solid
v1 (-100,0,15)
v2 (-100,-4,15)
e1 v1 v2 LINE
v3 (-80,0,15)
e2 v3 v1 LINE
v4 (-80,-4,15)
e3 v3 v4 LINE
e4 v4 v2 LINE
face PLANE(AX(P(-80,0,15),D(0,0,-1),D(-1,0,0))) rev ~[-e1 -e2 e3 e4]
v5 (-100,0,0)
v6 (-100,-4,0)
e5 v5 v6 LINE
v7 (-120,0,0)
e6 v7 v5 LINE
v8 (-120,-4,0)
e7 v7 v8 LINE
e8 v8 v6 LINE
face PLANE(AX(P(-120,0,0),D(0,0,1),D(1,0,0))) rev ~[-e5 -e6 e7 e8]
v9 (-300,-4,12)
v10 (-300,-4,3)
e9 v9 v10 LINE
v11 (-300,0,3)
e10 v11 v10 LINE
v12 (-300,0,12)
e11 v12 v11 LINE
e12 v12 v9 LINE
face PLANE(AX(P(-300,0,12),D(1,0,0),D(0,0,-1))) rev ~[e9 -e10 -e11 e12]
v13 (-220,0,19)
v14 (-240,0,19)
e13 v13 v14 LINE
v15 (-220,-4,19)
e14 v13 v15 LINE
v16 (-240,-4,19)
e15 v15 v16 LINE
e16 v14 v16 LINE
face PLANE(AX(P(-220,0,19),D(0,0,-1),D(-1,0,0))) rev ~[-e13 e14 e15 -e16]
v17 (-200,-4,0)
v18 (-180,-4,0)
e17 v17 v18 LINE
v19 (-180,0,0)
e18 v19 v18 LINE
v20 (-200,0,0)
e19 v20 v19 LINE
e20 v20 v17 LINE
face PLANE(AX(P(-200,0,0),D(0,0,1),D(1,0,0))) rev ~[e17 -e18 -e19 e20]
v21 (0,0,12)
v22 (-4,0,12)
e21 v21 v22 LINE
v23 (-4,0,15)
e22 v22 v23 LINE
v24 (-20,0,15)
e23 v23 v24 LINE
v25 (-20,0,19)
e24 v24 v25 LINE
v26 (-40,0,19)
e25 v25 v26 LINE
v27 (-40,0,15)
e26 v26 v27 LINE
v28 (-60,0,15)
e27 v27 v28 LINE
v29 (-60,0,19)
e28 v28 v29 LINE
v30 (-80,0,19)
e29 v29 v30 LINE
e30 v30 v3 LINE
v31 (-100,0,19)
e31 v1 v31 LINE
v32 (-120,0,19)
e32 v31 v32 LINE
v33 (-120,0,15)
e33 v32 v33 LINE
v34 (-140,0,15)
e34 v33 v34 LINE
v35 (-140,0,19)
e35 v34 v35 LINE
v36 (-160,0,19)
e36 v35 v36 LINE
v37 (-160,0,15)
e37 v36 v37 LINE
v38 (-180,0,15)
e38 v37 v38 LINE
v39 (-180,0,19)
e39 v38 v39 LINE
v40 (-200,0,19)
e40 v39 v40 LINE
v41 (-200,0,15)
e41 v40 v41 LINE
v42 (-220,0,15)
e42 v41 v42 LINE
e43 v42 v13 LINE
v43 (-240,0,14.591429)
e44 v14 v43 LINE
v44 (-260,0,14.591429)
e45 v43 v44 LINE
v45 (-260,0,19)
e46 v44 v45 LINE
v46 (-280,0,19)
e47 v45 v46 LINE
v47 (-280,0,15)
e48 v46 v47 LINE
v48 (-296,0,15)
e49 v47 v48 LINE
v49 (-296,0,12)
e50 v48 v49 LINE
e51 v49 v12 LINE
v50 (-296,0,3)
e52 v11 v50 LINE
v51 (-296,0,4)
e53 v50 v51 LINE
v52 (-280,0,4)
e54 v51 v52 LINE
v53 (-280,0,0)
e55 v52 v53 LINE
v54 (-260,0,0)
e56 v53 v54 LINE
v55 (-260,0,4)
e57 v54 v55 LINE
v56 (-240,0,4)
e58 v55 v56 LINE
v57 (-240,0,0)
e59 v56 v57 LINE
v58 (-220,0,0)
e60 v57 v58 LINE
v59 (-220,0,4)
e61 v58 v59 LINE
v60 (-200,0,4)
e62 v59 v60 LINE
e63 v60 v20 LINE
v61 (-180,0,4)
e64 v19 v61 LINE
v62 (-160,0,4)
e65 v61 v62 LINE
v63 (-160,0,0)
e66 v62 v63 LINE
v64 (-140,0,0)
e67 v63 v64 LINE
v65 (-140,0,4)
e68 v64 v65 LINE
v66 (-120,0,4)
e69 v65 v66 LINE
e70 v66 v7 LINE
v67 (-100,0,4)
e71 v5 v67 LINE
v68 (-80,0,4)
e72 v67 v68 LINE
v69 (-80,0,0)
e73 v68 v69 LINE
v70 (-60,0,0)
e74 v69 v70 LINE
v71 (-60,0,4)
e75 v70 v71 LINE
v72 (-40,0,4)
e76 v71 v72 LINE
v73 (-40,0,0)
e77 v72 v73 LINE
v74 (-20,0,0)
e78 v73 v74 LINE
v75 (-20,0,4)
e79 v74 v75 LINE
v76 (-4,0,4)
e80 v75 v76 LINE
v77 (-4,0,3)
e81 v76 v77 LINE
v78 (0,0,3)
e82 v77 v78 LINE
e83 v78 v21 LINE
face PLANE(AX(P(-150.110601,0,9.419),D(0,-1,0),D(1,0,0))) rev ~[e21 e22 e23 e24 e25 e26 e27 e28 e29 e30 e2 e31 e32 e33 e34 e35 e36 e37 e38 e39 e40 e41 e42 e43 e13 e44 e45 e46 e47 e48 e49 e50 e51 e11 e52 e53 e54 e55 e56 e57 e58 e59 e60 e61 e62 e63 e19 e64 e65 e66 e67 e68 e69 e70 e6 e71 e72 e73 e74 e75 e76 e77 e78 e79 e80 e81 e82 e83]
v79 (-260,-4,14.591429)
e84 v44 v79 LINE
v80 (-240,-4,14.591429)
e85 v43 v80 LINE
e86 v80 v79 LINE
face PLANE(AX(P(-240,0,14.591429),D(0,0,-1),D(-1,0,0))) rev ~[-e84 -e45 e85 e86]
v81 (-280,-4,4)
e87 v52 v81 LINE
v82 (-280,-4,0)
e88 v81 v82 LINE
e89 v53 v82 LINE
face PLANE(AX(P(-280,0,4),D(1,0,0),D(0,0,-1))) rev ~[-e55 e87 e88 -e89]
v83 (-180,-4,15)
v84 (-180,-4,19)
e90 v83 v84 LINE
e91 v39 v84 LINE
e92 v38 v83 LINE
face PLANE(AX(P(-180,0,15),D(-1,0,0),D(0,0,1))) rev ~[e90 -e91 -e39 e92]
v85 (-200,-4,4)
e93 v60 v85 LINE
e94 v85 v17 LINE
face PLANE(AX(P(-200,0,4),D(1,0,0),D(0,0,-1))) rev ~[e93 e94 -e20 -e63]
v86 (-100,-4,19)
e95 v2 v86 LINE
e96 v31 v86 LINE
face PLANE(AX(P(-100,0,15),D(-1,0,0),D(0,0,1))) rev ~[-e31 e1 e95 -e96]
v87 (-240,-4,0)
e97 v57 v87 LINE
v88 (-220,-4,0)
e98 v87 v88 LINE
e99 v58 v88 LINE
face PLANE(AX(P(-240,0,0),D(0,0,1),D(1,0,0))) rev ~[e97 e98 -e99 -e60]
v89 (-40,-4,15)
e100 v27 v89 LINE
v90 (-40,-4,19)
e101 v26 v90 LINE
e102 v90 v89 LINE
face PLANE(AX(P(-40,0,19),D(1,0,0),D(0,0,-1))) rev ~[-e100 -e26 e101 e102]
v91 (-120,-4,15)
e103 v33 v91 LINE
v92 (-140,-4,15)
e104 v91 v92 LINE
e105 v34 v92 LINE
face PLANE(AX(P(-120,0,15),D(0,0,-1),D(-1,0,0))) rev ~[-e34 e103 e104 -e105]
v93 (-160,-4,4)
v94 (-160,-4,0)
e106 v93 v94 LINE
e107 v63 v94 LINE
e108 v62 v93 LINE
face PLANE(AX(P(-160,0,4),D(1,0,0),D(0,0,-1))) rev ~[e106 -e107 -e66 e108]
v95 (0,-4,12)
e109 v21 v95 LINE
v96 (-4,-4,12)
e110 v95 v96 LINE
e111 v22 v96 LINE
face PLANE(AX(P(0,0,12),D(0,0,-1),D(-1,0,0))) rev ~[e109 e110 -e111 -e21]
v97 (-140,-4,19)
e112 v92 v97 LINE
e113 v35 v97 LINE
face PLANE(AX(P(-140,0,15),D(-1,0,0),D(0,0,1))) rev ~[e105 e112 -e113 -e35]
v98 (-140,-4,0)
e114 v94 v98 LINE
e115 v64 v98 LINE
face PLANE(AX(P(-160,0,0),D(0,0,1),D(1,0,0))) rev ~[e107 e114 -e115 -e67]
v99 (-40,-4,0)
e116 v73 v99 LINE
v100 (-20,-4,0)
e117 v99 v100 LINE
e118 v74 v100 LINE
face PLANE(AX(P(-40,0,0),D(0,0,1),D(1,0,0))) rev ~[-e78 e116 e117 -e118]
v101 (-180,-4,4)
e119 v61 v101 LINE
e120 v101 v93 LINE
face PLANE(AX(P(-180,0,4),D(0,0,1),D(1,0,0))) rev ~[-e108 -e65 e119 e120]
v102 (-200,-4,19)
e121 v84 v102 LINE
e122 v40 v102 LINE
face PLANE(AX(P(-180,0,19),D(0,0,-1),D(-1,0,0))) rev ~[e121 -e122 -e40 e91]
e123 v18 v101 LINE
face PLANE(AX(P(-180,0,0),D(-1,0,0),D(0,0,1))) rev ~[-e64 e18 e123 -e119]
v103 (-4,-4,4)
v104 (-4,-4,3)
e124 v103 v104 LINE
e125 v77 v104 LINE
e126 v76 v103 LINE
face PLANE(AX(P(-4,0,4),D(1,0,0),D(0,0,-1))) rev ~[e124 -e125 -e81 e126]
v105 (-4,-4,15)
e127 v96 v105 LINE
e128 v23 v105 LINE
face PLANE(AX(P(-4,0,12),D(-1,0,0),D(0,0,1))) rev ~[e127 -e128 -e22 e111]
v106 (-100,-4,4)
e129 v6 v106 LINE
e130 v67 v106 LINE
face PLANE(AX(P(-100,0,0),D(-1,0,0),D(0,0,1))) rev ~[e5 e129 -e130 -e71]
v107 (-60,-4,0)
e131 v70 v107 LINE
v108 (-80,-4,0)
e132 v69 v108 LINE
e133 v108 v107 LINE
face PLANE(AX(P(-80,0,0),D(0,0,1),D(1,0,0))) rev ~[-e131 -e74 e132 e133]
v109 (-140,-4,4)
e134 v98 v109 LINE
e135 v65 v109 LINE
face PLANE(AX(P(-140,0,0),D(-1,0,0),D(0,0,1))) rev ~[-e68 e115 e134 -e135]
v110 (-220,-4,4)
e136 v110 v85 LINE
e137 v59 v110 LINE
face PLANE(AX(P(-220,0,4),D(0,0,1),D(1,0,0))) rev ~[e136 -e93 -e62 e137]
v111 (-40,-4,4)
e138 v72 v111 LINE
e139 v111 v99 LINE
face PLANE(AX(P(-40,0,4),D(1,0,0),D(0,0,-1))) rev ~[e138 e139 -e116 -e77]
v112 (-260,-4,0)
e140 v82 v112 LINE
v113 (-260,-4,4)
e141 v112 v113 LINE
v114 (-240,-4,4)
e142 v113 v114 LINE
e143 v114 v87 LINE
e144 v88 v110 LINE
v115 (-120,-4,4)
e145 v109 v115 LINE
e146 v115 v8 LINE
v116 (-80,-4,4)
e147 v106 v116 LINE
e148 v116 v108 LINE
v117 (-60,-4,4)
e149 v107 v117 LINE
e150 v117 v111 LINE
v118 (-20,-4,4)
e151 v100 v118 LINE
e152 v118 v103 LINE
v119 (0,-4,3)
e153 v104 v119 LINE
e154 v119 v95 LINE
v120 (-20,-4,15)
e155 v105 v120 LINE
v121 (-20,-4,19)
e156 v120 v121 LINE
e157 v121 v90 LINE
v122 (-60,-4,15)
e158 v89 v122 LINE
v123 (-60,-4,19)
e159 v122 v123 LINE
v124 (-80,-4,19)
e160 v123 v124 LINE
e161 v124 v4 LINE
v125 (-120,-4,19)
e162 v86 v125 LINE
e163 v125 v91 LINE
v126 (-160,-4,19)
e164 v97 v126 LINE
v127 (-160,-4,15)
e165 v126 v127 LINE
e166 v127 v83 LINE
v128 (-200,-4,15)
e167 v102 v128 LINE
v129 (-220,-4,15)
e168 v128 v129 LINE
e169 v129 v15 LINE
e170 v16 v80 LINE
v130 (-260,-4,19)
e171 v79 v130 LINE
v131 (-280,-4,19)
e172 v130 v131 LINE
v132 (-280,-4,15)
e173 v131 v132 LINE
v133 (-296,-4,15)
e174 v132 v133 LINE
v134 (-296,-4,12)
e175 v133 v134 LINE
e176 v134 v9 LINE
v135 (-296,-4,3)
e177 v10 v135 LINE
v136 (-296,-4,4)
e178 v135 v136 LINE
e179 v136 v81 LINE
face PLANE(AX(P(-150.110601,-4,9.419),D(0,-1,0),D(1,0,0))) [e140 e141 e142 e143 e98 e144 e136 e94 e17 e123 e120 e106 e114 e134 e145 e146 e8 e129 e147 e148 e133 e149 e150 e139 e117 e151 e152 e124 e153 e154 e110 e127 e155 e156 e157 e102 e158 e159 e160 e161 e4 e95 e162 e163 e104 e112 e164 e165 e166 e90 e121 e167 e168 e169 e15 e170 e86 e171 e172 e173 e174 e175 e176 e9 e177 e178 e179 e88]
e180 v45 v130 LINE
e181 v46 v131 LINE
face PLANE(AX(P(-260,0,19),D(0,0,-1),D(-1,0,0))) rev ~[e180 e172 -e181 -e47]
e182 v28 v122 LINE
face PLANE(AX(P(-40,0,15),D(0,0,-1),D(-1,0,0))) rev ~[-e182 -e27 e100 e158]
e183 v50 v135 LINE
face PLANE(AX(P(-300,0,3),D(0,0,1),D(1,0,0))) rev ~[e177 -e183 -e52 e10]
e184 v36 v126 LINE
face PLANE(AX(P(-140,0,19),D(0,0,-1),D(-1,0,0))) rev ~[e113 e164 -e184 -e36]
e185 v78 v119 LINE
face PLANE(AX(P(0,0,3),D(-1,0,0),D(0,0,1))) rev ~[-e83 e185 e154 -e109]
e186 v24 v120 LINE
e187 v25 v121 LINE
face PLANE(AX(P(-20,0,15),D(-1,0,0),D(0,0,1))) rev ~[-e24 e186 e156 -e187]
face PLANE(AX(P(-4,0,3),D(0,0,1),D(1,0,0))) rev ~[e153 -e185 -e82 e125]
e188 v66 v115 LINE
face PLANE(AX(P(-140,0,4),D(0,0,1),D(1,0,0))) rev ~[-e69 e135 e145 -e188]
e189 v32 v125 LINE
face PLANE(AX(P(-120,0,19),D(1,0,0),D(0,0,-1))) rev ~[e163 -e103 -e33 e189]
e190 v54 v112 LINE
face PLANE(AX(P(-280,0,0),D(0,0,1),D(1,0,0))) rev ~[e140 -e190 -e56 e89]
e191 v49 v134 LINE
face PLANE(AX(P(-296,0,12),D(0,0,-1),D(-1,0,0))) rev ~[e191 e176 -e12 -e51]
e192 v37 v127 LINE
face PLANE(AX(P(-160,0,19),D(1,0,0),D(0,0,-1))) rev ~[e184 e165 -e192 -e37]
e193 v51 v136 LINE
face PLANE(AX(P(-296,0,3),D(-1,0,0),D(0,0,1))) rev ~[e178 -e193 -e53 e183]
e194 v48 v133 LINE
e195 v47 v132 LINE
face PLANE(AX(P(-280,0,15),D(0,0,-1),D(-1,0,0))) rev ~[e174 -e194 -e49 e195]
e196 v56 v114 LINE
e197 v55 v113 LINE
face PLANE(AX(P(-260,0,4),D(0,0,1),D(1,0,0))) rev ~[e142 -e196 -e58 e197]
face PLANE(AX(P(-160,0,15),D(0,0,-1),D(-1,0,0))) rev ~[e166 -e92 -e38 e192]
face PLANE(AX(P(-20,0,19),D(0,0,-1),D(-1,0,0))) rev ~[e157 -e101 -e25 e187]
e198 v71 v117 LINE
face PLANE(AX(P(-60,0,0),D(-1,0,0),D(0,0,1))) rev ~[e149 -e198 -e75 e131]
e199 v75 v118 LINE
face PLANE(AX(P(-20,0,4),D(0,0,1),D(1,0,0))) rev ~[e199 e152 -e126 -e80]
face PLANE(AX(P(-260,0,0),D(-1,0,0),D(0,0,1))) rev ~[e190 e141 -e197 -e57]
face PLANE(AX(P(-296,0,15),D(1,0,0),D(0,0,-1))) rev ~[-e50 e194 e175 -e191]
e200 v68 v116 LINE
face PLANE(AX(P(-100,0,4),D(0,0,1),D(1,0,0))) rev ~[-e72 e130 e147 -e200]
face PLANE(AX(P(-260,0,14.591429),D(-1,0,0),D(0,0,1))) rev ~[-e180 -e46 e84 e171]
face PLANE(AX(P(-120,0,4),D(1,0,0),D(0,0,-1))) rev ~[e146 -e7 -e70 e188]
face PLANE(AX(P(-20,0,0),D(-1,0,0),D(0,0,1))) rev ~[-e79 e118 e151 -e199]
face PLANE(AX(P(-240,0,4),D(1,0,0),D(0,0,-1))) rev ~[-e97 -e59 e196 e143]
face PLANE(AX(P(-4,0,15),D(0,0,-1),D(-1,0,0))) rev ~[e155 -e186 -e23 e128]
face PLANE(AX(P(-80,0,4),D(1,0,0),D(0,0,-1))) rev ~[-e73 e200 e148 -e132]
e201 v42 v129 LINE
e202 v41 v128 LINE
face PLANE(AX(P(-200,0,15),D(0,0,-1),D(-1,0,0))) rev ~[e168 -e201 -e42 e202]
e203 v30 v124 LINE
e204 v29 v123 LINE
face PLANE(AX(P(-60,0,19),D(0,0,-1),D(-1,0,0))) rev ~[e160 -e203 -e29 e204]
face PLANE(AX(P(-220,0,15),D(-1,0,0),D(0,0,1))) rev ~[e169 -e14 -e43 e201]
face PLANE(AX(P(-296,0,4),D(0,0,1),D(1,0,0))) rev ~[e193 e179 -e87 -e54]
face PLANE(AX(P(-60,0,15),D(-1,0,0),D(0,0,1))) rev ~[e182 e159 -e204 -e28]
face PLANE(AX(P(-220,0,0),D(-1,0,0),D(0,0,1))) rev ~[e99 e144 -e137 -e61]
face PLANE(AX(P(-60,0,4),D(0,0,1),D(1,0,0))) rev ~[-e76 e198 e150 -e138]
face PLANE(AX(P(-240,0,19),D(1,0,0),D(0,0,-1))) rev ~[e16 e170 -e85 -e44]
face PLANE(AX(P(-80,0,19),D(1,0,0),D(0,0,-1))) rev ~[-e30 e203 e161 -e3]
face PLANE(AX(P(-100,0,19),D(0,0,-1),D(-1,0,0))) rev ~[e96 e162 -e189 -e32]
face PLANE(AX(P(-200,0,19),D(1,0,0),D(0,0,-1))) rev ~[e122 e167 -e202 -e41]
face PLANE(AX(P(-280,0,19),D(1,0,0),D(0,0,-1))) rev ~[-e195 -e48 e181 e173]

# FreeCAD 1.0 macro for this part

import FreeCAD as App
import Part
import Sketcher
from FreeCAD import Vector


def add_polygon(sketch, points):
    """Adds a closed chain of lines whose ends are joined by coincident constraints."""
    first, n = sketch.GeometryCount, len(points)
    for a, b in zip(points, points[1:] + points[:1]):
        sketch.addGeometry(Part.LineSegment(App.Vector(*a, 0), App.Vector(*b, 0)), False)
    for i in range(n):
        sketch.addConstraint(Sketcher.Constraint("Coincident", first + i, 2, first + (i + 1) % n, 1))

doc = App.newDocument("Part")
body = doc.addObject("PartDesign::Body", "Body")

# Sketch on XZ plane
sketch1 = body.newObject("Sketcher::SketchObject", "Sketch")
sketch1.AttachmentSupport = (doc.getObject("XZ_Plane"), [""])
sketch1.MapMode = "FlatFace"
add_polygon(sketch1, [(-4, 3), (0, 3), (0, 12), (-4, 12), (-4, 15), (-20, 15), (-20, 19), (-40, 19), (-40, 15), (-60, 15), (-60, 19), (-80, 19), (-80, 15), (-100, 15), (-100, 19), (-120, 19), (-120, 15), (-140, 15), (-140, 19), (-160, 19), (-160, 15), (-180, 15), (-180, 19), (-200, 19), (-200, 15), (-220, 15), (-220, 19), (-240, 19), (-240, 14.591429), (-260, 14.591429), (-260, 19), (-280, 19), (-280, 15), (-296, 15), (-296, 12), (-300, 12), (-300, 3), (-296, 3), (-296, 4), (-280, 4), (-280, 0), (-260, 0), (-260, 4), (-240, 4), (-240, 0), (-220, 0), (-220, 4), (-200, 4), (-200, 0), (-180, 0), (-180, 4), (-160, 4), (-160, 0), (-140, 0), (-140, 4), (-120, 4), (-120, 0), (-100, 0), (-100, 4), (-80, 4), (-80, 0), (-60, 0), (-60, 4), (-40, 4), (-40, 0), (-20, 0), (-20, 4), (-4, 4)])  # lines 0-67
sketch1.addConstraint([
    Sketcher.Constraint("Horizontal", 0),
    Sketcher.Constraint("Vertical", 1),
    Sketcher.Constraint("Horizontal", 2),
    Sketcher.Constraint("Vertical", 3),
    Sketcher.Constraint("Horizontal", 4),
    Sketcher.Constraint("Vertical", 5),
    Sketcher.Constraint("Horizontal", 6),
    Sketcher.Constraint("Vertical", 7),
    Sketcher.Constraint("Horizontal", 8),
    Sketcher.Constraint("Vertical", 9),
    Sketcher.Constraint("Horizontal", 10),
    Sketcher.Constraint("Vertical", 11),
    Sketcher.Constraint("Horizontal", 12),
    Sketcher.Constraint("Vertical", 13),
    Sketcher.Constraint("Horizontal", 14),
    Sketcher.Constraint("Vertical", 15),
    Sketcher.Constraint("Horizontal", 16),
    Sketcher.Constraint("Vertical", 17),
    Sketcher.Constraint("Horizontal", 18),
    Sketcher.Constraint("Vertical", 19),
    Sketcher.Constraint("Horizontal", 20),
    Sketcher.Constraint("Vertical", 21),
    Sketcher.Constraint("Horizontal", 22),
    Sketcher.Constraint("Vertical", 23),
    Sketcher.Constraint("Horizontal", 24),
    Sketcher.Constraint("Vertical", 25),
    Sketcher.Constraint("Horizontal", 26),
    Sketcher.Constraint("Vertical", 27),
    Sketcher.Constraint("Horizontal", 28),
    Sketcher.Constraint("Vertical", 29),
    Sketcher.Constraint("Horizontal", 30),
    Sketcher.Constraint("Vertical", 31),
    Sketcher.Constraint("Horizontal", 32),
    Sketcher.Constraint("Vertical", 33),
    Sketcher.Constraint("Horizontal", 34),
    Sketcher.Constraint("Vertical", 35),
    Sketcher.Constraint("Horizontal", 36),
    Sketcher.Constraint("Vertical", 37),
    Sketcher.Constraint("Horizontal", 38),
    Sketcher.Constraint("Vertical", 39),
    Sketcher.Constraint("Horizontal", 40),
    Sketcher.Constraint("Vertical", 41),
    Sketcher.Constraint("Horizontal", 42),
    Sketcher.Constraint("Vertical", 43),
    Sketcher.Constraint("Horizontal", 44),
    Sketcher.Constraint("Vertical", 45),
    Sketcher.Constraint("Horizontal", 46),
    Sketcher.Constraint("Vertical", 47),
    Sketcher.Constraint("Horizontal", 48),
    Sketcher.Constraint("Vertical", 49),
    Sketcher.Constraint("Horizontal", 50),
    Sketcher.Constraint("Vertical", 51),
    Sketcher.Constraint("Horizontal", 52),
    Sketcher.Constraint("Vertical", 53),
    Sketcher.Constraint("Horizontal", 54),
    Sketcher.Constraint("Vertical", 55),
    Sketcher.Constraint("Horizontal", 56),
    Sketcher.Constraint("Vertical", 57),
    Sketcher.Constraint("Horizontal", 58),
    Sketcher.Constraint("Vertical", 59),
    Sketcher.Constraint("Horizontal", 60),
    Sketcher.Constraint("Vertical", 61),
    Sketcher.Constraint("Horizontal", 62),
    Sketcher.Constraint("Vertical", 63),
    Sketcher.Constraint("Horizontal", 64),
    Sketcher.Constraint("Vertical", 65),
    Sketcher.Constraint("Horizontal", 66),
    Sketcher.Constraint("Vertical", 67),
    Sketcher.Constraint("PointOnObject", 0, 2, -2),
    Sketcher.Constraint("PointOnObject", 39, 2, -1),
    Sketcher.Constraint("PointOnObject", 43, 2, -1),
    Sketcher.Constraint("PointOnObject", 47, 2, -1),
    Sketcher.Constraint("PointOnObject", 51, 2, -1),
    Sketcher.Constraint("PointOnObject", 55, 2, -1),
    Sketcher.Constraint("PointOnObject", 59, 2, -1),
    Sketcher.Constraint("PointOnObject", 63, 2, -1),
    Sketcher.Constraint("Horizontal", 4, 2, 7, 2),
    Sketcher.Constraint("Horizontal", 6, 2, 9, 2),
    Sketcher.Constraint("Horizontal", 8, 2, 11, 2),
    Sketcher.Constraint("Horizontal", 10, 2, 13, 2),
    Sketcher.Constraint("Horizontal", 12, 2, 15, 2),
    Sketcher.Constraint("Horizontal", 14, 2, 17, 2),
    Sketcher.Constraint("Horizontal", 16, 2, 19, 2),
    Sketcher.Constraint("Horizontal", 18, 2, 21, 2),
    Sketcher.Constraint("Horizontal", 20, 2, 23, 2),
    Sketcher.Constraint("Horizontal", 22, 2, 25, 2),
    Sketcher.Constraint("Horizontal", 26, 2, 29, 2),
    Sketcher.Constraint("Horizontal", 24, 2, 31, 2),
    Sketcher.Constraint("Horizontal", 2, 2, 33, 2),
    Sketcher.Constraint("Horizontal", 0, 2, 35, 2),
    Sketcher.Constraint("Horizontal", 38, 2, 41, 2),
    Sketcher.Constraint("Horizontal", 42, 2, 45, 2),
    Sketcher.Constraint("Horizontal", 46, 2, 49, 2),
    Sketcher.Constraint("Horizontal", 50, 2, 53, 2),
    Sketcher.Constraint("Horizontal", 54, 2, 57, 2),
    Sketcher.Constraint("Horizontal", 58, 2, 61, 2),
    Sketcher.Constraint("Horizontal", 62, 2, 65, 2),
    Sketcher.Constraint("Vertical", 33, 2, 36, 2),
    Sketcher.Constraint("Vertical", 31, 2, 38, 2),
    Sketcher.Constraint("Vertical", 29, 2, 40, 2),
    Sketcher.Constraint("Vertical", 27, 2, 42, 2),
    Sketcher.Constraint("Vertical", 25, 2, 44, 2),
    Sketcher.Constraint("Vertical", 23, 2, 46, 2),
    Sketcher.Constraint("Vertical", 21, 2, 48, 2),
    Sketcher.Constraint("Vertical", 19, 2, 50, 2),
    Sketcher.Constraint("Vertical", 17, 2, 52, 2),
    Sketcher.Constraint("Vertical", 15, 2, 54, 2),
    Sketcher.Constraint("Vertical", 13, 2, 56, 2),
    Sketcher.Constraint("Vertical", 11, 2, 58, 2),
    Sketcher.Constraint("Vertical", 9, 2, 60, 2),
    Sketcher.Constraint("Vertical", 7, 2, 62, 2),
    Sketcher.Constraint("Vertical", 5, 2, 64, 2),
    Sketcher.Constraint("Vertical", 3, 2, 66, 2),
    Sketcher.Constraint("Equal", 6, 8),
    Sketcher.Constraint("Equal", 8, 10),
    Sketcher.Constraint("Equal", 10, 12),
    Sketcher.Constraint("Equal", 12, 14),
    Sketcher.Constraint("Equal", 14, 16),
    Sketcher.Constraint("Equal", 16, 18),
    Sketcher.Constraint("Equal", 18, 20),
    Sketcher.Constraint("Equal", 20, 22),
    Sketcher.Constraint("Equal", 22, 24),
    Sketcher.Constraint("Equal", 24, 26),
    Sketcher.Constraint("Equal", 26, 28),
    Sketcher.Constraint("Equal", 28, 30),
    Sketcher.Constraint("Equal", 4, 32),
    Sketcher.Constraint("Equal", 2, 34),
    Sketcher.Constraint("Equal", 36, 5),
    Sketcher.Constraint("Equal", 31, 39),
    Sketcher.Constraint("DistanceX", 0, 1, 0, 2, 4.0),
    Sketcher.Constraint("DistanceX", 4, 2, 4, 1, 16.0),
    Sketcher.Constraint("DistanceX", 6, 2, 6, 1, 20.0),
    Sketcher.Constraint("DistanceY", 1, 1, 1, 2, 9.0),
    Sketcher.Constraint("DistanceY", 3, 1, 3, 2, 3.0),
    Sketcher.Constraint("DistanceY", 37, 1, 37, 2, 1.0),
    Sketcher.Constraint("DistanceY", 27, 2, 27, 1, 4.408571),
])
pad1 = body.newObject("PartDesign::Pad", "Pad")
pad1.Profile = sketch1
pad1.Length = 4

doc.recompute()
